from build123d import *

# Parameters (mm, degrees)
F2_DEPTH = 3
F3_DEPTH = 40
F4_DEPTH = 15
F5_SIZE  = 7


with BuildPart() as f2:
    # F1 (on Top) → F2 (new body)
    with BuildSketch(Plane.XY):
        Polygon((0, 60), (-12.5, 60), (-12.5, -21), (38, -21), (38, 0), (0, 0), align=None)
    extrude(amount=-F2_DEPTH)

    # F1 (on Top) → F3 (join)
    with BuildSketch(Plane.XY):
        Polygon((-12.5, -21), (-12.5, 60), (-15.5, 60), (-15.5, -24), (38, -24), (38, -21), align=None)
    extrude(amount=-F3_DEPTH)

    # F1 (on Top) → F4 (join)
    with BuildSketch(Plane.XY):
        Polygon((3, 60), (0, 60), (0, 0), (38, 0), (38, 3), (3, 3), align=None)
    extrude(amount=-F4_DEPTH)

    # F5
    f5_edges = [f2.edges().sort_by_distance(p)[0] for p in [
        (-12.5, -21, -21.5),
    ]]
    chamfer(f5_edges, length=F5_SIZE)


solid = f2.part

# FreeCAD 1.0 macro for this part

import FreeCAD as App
import Part
import Sketcher

V = App.Vector
Q = App.Units.Quantity


def edges_at(feature, points):
    """Names of the edges that pass closest to the given points."""
    edges = feature.Shape.Edges
    near = lambda p: min(range(len(edges)), key=lambda i: edges[i].distToShape(Part.Vertex(*p))[0])
    return sorted({f"Edge{near(p) + 1}" for p in points})


def add_polygon(sketch, points):
    """Adds a closed chain of lines whose ends are joined by coincident constraints."""
    first, n = sketch.GeometryCount, len(points)
    for a, b in zip(points, points[1:] + points[:1]):
        sketch.addGeometry(Part.LineSegment(App.Vector(*a, 0), App.Vector(*b, 0)), False)
    for i in range(n):
        sketch.addConstraint(Sketcher.Constraint("Coincident", first + i, 2, first + (i + 1) % n, 1))

doc = App.newDocument("Part")
body = doc.addObject("PartDesign::Body", "Body")

# Sketch on XY plane
sketch1 = doc.addObject("Sketcher::SketchObject", "Sketch")
body.addObject(sketch1)
sketch1.AttachmentSupport = (doc.XY_Plane, [""])
sketch1.MapMode = "FlatFace"
add_polygon(sketch1, [(0, 60), (-12, 60), (-12, -21), (38, -21), (38, 0), (0, 0)])  # lines 0-5
sketch1.addConstraint(Sketcher.Constraint("Horizontal", 0))
sketch1.addConstraint(Sketcher.Constraint("Vertical", 1))
sketch1.addConstraint(Sketcher.Constraint("Horizontal", 2))
sketch1.addConstraint(Sketcher.Constraint("Vertical", 3))
sketch1.addConstraint(Sketcher.Constraint("Horizontal", 4))
sketch1.addConstraint(Sketcher.Constraint("Vertical", 5))
sketch1.addConstraint(Sketcher.Constraint("Coincident", 4, 2, -1, 1))
sketch1.addConstraint(Sketcher.Constraint("DistanceX", 4, 2, 4, 1, Q("38 mm")))
sketch1.addConstraint(Sketcher.Constraint("DistanceY", 1, 2, 1, 1, Q("81 mm")))
sketch1.addConstraint(Sketcher.Constraint("DistanceY", 3, 1, 3, 2, Q("21 mm")))
sketch1.addConstraint(Sketcher.Constraint("DistanceX", 0, 2, 0, 1, Q("12.5 mm")))
pad1 = doc.addObject("PartDesign::Pad", "Pad")
body.addObject(pad1)
pad1.Profile = sketch1
pad1.Length = 3
pad1.Reversed = True

# Sketch on XY plane
sketch2 = doc.addObject("Sketcher::SketchObject", "Sketch001")
body.addObject(sketch2)
sketch2.AttachmentSupport = (doc.XY_Plane, [""])
sketch2.MapMode = "FlatFace"
add_polygon(sketch2, [(-12.5, -21), (-12.5, 60), (-15.5, 60), (-15.5, -24), (38, -24), (38, -21)])  # lines 0-5
sketch2.addConstraint(Sketcher.Constraint("Vertical", 0))
sketch2.addConstraint(Sketcher.Constraint("Horizontal", 1))
sketch2.addConstraint(Sketcher.Constraint("Vertical", 2))
sketch2.addConstraint(Sketcher.Constraint("Horizontal", 3))
sketch2.addConstraint(Sketcher.Constraint("Vertical", 4))
sketch2.addConstraint(Sketcher.Constraint("Horizontal", 5))
sketch2.addConstraint(Sketcher.Constraint("Equal", 1, 4))
sketch2.addConstraint(Sketcher.Constraint("DistanceX", 1, 2, 1, 1, Q("3 mm")))
sketch2.addConstraint(Sketcher.Constraint("DistanceY", 0, 1, 0, 2, Q("81 mm")))
sketch2.addConstraint(Sketcher.Constraint("DistanceX", 3, 1, 3, 2, Q("53.5 mm")))
sketch2.addConstraint(Sketcher.Constraint("DistanceY", -1, 1, 0, 2, Q("60 mm")))
sketch2.addConstraint(Sketcher.Constraint("DistanceX", -1, 1, 3, 2, Q("38 mm")))
pad2 = doc.addObject("PartDesign::Pad", "Pad001")
body.addObject(pad2)
pad2.Profile = sketch2
pad2.Length = 40
pad2.Reversed = True

# Sketch on XY plane
sketch3 = doc.addObject("Sketcher::SketchObject", "Sketch002")
body.addObject(sketch3)
sketch3.AttachmentSupport = (doc.XY_Plane, [""])
sketch3.MapMode = "FlatFace"
add_polygon(sketch3, [(3, 60), (0, 60), (0, 0), (38, 0), (38, 3), (3, 3)])  # lines 0-5
sketch3.addConstraint(Sketcher.Constraint("Horizontal", 0))
sketch3.addConstraint(Sketcher.Constraint("Vertical", 1))
sketch3.addConstraint(Sketcher.Constraint("Horizontal", 2))
sketch3.addConstraint(Sketcher.Constraint("Vertical", 3))
sketch3.addConstraint(Sketcher.Constraint("Horizontal", 4))
sketch3.addConstraint(Sketcher.Constraint("Vertical", 5))
sketch3.addConstraint(Sketcher.Constraint("Coincident", 1, 2, -1, 1))
sketch3.addConstraint(Sketcher.Constraint("Equal", 0, 3))
sketch3.addConstraint(Sketcher.Constraint("DistanceX", 0, 2, 0, 1, Q("3 mm")))
sketch3.addConstraint(Sketcher.Constraint("DistanceX", 2, 1, 2, 2, Q("38 mm")))
sketch3.addConstraint(Sketcher.Constraint("DistanceY", 1, 2, 1, 1, Q("60 mm")))
pad3 = doc.addObject("PartDesign::Pad", "Pad002")
body.addObject(pad3)
pad3.Profile = sketch3
pad3.Length = 15
pad3.Reversed = True
doc.recompute()

chamfer = doc.addObject("PartDesign::Chamfer", "Chamfer")
body.addObject(chamfer)
chamfer.Base = (pad3, edges_at(pad3, [(-12.5, -21, -21.5)]))
chamfer.Size = 7

doc.recompute()
